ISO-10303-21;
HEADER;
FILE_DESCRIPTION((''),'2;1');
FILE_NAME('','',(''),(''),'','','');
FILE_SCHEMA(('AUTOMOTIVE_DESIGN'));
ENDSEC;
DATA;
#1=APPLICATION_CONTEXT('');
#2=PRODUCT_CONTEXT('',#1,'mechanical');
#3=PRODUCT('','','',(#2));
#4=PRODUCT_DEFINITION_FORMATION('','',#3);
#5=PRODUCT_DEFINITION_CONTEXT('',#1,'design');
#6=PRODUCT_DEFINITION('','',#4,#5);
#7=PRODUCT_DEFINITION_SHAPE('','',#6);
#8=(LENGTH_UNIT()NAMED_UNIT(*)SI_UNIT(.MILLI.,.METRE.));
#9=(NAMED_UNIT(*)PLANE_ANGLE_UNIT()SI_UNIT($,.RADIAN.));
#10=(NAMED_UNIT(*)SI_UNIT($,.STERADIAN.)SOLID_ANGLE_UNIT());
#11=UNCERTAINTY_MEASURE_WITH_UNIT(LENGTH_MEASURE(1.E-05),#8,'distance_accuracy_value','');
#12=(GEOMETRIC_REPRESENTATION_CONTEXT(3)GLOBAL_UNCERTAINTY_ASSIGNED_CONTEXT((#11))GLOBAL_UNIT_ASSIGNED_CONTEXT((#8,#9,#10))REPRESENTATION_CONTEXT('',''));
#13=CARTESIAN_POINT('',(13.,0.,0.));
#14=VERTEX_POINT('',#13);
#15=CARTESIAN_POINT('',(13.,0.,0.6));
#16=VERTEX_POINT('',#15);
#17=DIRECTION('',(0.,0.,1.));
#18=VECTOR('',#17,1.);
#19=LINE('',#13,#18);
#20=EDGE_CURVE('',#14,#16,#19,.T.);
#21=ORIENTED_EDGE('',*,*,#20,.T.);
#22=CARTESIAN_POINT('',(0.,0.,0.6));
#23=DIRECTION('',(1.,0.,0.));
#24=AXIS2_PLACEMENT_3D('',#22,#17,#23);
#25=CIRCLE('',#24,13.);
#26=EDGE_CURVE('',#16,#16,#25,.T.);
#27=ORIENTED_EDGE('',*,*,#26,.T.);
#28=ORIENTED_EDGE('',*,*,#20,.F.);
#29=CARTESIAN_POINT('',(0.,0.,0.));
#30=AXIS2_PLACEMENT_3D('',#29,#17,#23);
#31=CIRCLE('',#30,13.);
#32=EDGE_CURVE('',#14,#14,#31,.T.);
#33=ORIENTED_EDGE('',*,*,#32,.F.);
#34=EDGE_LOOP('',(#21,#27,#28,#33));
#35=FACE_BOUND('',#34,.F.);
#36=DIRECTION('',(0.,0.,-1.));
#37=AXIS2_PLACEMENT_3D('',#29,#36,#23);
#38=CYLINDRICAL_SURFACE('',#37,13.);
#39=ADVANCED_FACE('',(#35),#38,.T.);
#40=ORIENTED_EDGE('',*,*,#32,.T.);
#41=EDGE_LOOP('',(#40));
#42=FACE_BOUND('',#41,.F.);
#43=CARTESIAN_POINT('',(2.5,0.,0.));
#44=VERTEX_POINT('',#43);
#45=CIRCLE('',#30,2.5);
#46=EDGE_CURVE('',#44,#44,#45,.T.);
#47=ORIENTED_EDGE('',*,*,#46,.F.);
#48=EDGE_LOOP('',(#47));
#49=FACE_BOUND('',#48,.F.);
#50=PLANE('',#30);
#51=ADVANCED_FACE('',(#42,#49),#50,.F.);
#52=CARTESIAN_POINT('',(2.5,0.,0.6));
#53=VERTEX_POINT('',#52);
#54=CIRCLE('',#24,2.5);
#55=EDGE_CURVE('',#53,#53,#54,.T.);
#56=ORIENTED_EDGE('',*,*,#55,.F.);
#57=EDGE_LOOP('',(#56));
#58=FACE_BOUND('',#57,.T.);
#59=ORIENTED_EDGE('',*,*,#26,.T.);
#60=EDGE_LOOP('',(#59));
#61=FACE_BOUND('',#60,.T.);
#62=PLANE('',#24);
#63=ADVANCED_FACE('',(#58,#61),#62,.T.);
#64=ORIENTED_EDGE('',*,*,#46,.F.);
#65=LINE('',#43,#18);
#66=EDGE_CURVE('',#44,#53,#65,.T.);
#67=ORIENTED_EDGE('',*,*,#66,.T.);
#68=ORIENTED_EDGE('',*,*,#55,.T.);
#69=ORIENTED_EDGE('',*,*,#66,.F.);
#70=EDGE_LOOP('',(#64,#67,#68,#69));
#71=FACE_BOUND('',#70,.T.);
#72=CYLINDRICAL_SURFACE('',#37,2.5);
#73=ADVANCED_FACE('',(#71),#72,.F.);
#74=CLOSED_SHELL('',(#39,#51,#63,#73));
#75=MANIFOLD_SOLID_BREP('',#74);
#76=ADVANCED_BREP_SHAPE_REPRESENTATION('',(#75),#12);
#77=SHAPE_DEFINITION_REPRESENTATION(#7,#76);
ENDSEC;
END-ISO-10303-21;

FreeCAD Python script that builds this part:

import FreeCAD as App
import Part
import Sketcher

V = App.Vector
Q = App.Units.Quantity

doc = App.newDocument("Part")
params = doc.addObject("Spreadsheet::Sheet", "Params")
for row, (alias, value) in enumerate([
    ("sketch1_diameter", "26 mm"),
    ("sketch1_diameter2", "5 mm"),
    ("pad1_length", "0.6 mm"),
], start=1):
    params.set(f"A{row}", alias)
    params.set(f"B{row}", "=" + value)
    params.setAlias(f"B{row}", alias)

body = doc.addObject("PartDesign::Body", "Body")

sketch1 = body.newObject("Sketcher::SketchObject", "Sketch")
sketch1.AttachmentSupport = (doc.getObject("XY_Plane"), [""])
sketch1.MapMode = "FlatFace"
sketch1.addGeometry(Part.Circle(V(0, 0, 0), V(0, 0, 1), 13), False)
sketch1.addGeometry(Part.Circle(V(0, 0, 0), V(0, 0, 1), 2.5), False)
sketch1.addConstraint(Sketcher.Constraint("Coincident", 0, 3, -1, 1))
sketch1.addConstraint(Sketcher.Constraint("Coincident", 1, 3, -1, 1))
sketch1.addConstraint(Sketcher.Constraint("Diameter", 0, Q("26 mm")))
sketch1.addConstraint(Sketcher.Constraint("Diameter", 1, Q("5 mm")))
sketch1.setExpression("Constraints[2]", "Params.sketch1_diameter")
sketch1.setExpression("Constraints[3]", "Params.sketch1_diameter2")
pad1 = body.newObject("PartDesign::Pad", "Pad")
pad1.Profile = sketch1
pad1.setExpression("Length", "Params.pad1_length")

doc.recompute()
